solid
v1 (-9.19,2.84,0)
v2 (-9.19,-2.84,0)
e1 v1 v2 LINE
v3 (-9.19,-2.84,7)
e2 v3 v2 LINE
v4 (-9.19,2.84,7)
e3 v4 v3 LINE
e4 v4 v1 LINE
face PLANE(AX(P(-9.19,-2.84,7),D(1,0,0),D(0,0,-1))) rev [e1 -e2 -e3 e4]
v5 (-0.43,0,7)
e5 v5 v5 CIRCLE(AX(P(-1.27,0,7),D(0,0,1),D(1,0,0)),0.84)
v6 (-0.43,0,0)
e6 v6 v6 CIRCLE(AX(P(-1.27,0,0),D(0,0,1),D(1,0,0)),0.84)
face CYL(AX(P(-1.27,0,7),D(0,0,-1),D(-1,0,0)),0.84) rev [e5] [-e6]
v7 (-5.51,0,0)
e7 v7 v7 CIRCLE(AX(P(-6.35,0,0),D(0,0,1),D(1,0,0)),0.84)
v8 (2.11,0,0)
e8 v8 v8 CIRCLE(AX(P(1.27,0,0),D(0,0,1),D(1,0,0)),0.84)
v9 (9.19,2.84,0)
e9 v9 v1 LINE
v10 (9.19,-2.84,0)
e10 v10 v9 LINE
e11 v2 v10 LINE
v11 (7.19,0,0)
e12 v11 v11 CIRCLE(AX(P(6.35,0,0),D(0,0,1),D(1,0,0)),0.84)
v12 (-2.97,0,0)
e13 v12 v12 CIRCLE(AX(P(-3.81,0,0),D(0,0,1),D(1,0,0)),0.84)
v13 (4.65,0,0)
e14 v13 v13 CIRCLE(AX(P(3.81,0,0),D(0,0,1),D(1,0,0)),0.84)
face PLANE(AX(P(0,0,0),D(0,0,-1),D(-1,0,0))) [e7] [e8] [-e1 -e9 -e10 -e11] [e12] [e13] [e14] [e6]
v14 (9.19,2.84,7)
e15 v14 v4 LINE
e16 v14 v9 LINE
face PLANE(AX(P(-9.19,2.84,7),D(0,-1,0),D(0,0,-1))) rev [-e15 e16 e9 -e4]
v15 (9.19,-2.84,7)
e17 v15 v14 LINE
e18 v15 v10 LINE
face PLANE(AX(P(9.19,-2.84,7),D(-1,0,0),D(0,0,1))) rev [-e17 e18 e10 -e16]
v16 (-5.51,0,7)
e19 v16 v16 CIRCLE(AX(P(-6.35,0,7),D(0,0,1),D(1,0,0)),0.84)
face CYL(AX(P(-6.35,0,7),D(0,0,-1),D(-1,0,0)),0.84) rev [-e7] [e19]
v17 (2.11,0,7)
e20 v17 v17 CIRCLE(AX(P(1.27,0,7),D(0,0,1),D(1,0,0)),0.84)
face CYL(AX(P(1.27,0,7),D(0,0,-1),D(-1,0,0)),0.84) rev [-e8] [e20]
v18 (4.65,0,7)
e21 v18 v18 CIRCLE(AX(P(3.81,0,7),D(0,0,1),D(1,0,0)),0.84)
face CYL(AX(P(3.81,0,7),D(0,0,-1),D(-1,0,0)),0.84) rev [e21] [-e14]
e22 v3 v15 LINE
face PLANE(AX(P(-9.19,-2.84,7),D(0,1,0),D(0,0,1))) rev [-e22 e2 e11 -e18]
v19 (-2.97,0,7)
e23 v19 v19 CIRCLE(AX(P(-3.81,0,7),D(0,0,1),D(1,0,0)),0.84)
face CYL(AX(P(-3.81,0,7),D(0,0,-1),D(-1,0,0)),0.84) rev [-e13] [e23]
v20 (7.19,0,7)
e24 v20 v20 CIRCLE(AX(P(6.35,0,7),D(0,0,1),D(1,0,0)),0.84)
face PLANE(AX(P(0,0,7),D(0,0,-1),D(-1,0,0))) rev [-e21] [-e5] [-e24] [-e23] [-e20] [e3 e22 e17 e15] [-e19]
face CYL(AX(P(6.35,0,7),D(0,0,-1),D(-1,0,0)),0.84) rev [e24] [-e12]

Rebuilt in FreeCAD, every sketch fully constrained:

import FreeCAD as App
import Part
import Sketcher

V = App.Vector
Q = App.Units.Quantity

doc = App.newDocument("Part")
body = doc.addObject("PartDesign::Body", "Body")

sketch1 = body.newObject("Sketcher::SketchObject", "Sketch")
sketch1.AttachmentSupport = (doc.getObject("XY_Plane"), [""])
sketch1.MapMode = "FlatFace"
sketch1.addGeometry(Part.LineSegment(V(-9.19, 2.84, 0), V(-9.19, -2.84, 0)), False)
sketch1.addGeometry(Part.LineSegment(V(-9.19, -2.84, 0), V(9.19, -2.84, 0)), False)
sketch1.addGeometry(Part.LineSegment(V(9.19, -2.84, 0), V(9.19, 2.84, 0)), False)
sketch1.addGeometry(Part.LineSegment(V(9.19, 2.84, 0), V(-9.19, 2.84, 0)), False)
sketch1.addGeometry(Part.Circle(V(-6.35, 0, 0), V(0, 0, 1), 0.84), False)
sketch1.addGeometry(Part.Circle(V(-3.81, 0, 0), V(0, 0, 1), 0.84), False)
sketch1.addGeometry(Part.Circle(V(-1.27, 0, 0), V(0, 0, 1), 0.84), False)
sketch1.addGeometry(Part.Circle(V(1.27, 0, 0), V(0, 0, 1), 0.84), False)
sketch1.addGeometry(Part.Circle(V(3.81, 0, 0), V(0, 0, 1), 0.84), False)
sketch1.addGeometry(Part.Circle(V(6.35, 0, 0), V(0, 0, 1), 0.84), False)
sketch1.addConstraint(Sketcher.Constraint("Coincident", 0, 2, 1, 1))
sketch1.addConstraint(Sketcher.Constraint("Coincident", 1, 2, 2, 1))
sketch1.addConstraint(Sketcher.Constraint("Coincident", 2, 2, 3, 1))
sketch1.addConstraint(Sketcher.Constraint("Coincident", 3, 2, 0, 1))
sketch1.addConstraint(Sketcher.Constraint("Vertical", 0))
sketch1.addConstraint(Sketcher.Constraint("Horizontal", 1))
sketch1.addConstraint(Sketcher.Constraint("Vertical", 2))
sketch1.addConstraint(Sketcher.Constraint("Horizontal", 3))
sketch1.addConstraint(Sketcher.Constraint("Equal", 4, 5))
sketch1.addConstraint(Sketcher.Constraint("Equal", 5, 6))
sketch1.addConstraint(Sketcher.Constraint("Equal", 6, 7))
sketch1.addConstraint(Sketcher.Constraint("Equal", 7, 8))
sketch1.addConstraint(Sketcher.Constraint("Equal", 8, 9))
sketch1.addConstraint(Sketcher.Constraint("Symmetric", 6, 3, 7, 3, -1, 1))
sketch1.addConstraint(Sketcher.Constraint("Symmetric", 5, 3, 8, 3, -1, 1))
sketch1.addConstraint(Sketcher.Constraint("Symmetric", 4, 3, 9, 3, -1, 1))
sketch1.addConstraint(Sketcher.Constraint("Symmetric", 0, 2, 2, 2, -1, 1))
sketch1.addConstraint(Sketcher.Constraint("PointOnObject", 4, 3, -1))
sketch1.addConstraint(Sketcher.Constraint("PointOnObject", 5, 3, -1))
sketch1.addConstraint(Sketcher.Constraint("PointOnObject", 6, 3, -1))
sketch1.addConstraint(Sketcher.Constraint("Diameter", 4, Q("1.68 mm")))
sketch1.addConstraint(Sketcher.Constraint("DistanceX", 0, 2, 8, 3, Q("13 mm")))
sketch1.addConstraint(Sketcher.Constraint("DistanceX", 1, 1, 1, 2, Q("18.38 mm")))
sketch1.addConstraint(Sketcher.Constraint("DistanceY", 0, 2, 0, 1, Q("5.68 mm")))
sketch1.addConstraint(Sketcher.Constraint("DistanceX", 4, 3, 9, 3, Q("12.7 mm")))
sketch1.addConstraint(Sketcher.Constraint("DistanceX", 6, 3, -1, 1, Q("1.27 mm")))
pad1 = body.newObject("PartDesign::Pad", "Pad")
pad1.Profile = sketch1
pad1.Length = 7

doc.recompute()
